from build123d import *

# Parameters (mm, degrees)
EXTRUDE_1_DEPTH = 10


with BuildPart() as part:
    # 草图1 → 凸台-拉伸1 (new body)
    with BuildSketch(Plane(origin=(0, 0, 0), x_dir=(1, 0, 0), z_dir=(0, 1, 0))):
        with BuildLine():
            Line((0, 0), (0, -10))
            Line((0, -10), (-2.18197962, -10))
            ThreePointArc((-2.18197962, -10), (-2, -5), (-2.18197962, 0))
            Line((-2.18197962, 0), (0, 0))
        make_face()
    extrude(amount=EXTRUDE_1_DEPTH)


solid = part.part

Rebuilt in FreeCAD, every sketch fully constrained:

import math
import FreeCAD as App
import Part
import Sketcher
Q = App.Units.Quantity

doc = App.newDocument("Part")
body = doc.addObject("PartDesign::Body", "Body")

sketch1 = body.newObject("Sketcher::SketchObject", "Sketch")
sketch1.AttachmentSupport = (doc.getObject("XZ_Plane"), [""])
sketch1.MapMode = "FlatFace"
sketch1.addGeometry(Part.LineSegment(App.Vector(0, 10, 0), App.Vector(0, 0, 0)), False)
sketch1.addGeometry(Part.LineSegment(App.Vector(0, 0, 0), App.Vector(-2.18198, 0, 0)), False)
sketch1.addGeometry(Part.ArcOfCircle(Part.Circle(App.Vector(-70.78, 5, 0), App.Vector(0, 0, 1), 68.78), math.radians(-4.168826), math.radians(4.168826)), False)
sketch1.addGeometry(Part.LineSegment(App.Vector(-2.18198, 10, 0), App.Vector(0, 10, 0)), False)
sketch1.addConstraint(Sketcher.Constraint("Coincident", 0, 2, 1, 1))
sketch1.addConstraint(Sketcher.Constraint("Coincident", 1, 2, 2, 1))
sketch1.addConstraint(Sketcher.Constraint("Coincident", 2, 2, 3, 1))
sketch1.addConstraint(Sketcher.Constraint("Coincident", 3, 2, 0, 1))
sketch1.addConstraint(Sketcher.Constraint("Vertical", 0))
sketch1.addConstraint(Sketcher.Constraint("Horizontal", 1))
sketch1.addConstraint(Sketcher.Constraint("Horizontal", 3))
sketch1.addConstraint(Sketcher.Constraint("Coincident", 0, 2, -1, 1))
sketch1.addConstraint(Sketcher.Constraint("Vertical", 1, 2, 2, 2))
sketch1.addConstraint(Sketcher.Constraint("DistanceY", 0, 2, 0, 1, Q("10 mm")))
sketch1.addConstraint(Sketcher.Constraint("Radius", 2, Q("68.78 mm")))
sketch1.addConstraint(Sketcher.Constraint("DistanceX", 2, 3, -1, 1, Q("70.78 mm")))
pad1 = body.newObject("PartDesign::Pad", "Pad")
pad1.Profile = sketch1
pad1.Length = 10
pad1.Reversed = True

doc.recompute()
